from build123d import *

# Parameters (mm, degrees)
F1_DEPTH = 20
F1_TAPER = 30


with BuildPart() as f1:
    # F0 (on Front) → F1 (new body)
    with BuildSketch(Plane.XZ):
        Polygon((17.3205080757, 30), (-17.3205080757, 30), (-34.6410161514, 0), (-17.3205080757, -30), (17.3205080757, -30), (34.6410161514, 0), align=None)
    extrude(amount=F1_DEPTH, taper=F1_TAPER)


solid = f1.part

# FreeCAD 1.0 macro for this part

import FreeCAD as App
import Part
import Sketcher

V = App.Vector
Q = App.Units.Quantity

doc = App.newDocument("Part")
body = doc.addObject("PartDesign::Body", "Body")

# Sketch on XZ plane
sketch1 = doc.addObject("Sketcher::SketchObject", "Sketch")
body.addObject(sketch1)
sketch1.AttachmentSupport = (doc.XZ_Plane, [""])
sketch1.MapMode = "FlatFace"
sketch1.addGeometry([
    Part.LineSegment(V(17.320508, 30, 0), V(-17.320508, 30, 0)),  # 0
    Part.LineSegment(V(-17.320508, 30, 0), V(-34.641016, 0, 0)),  # 1
    Part.LineSegment(V(-34.641016, 0, 0), V(-17.320508, -30, 0)),  # 2
    Part.LineSegment(V(-17.320508, -30, 0), V(17.320508, -30, 0)),  # 3
    Part.LineSegment(V(17.320508, -30, 0), V(34.641016, 0, 0)),  # 4
    Part.LineSegment(V(34.641016, 0, 0), V(17.320508, 30, 0)),  # 5
], False)
sketch1.addConstraint([
    Sketcher.Constraint("Coincident", 0, 2, 1, 1),
    Sketcher.Constraint("Coincident", 1, 2, 2, 1),
    Sketcher.Constraint("Coincident", 2, 2, 3, 1),
    Sketcher.Constraint("Coincident", 3, 2, 4, 1),
    Sketcher.Constraint("Coincident", 4, 2, 5, 1),
    Sketcher.Constraint("Coincident", 5, 2, 0, 1),
    Sketcher.Constraint("Horizontal", 0),
    Sketcher.Constraint("Horizontal", 3),
    Sketcher.Constraint("Symmetric", 0, 2, 3, 2, -1, 1),
    Sketcher.Constraint("Symmetric", 1, 2, 4, 2, -1, 1),
    Sketcher.Constraint("PointOnObject", 1, 2, -1),
    Sketcher.Constraint("Parallel", 2, 5),
    Sketcher.Constraint("Vertical", 0, 2, 2, 2),
    Sketcher.Constraint("Angle", 1, Q("-120 deg")),
    Sketcher.Constraint("DistanceY", -1, 1, 0, 2, Q("30 mm")),
    Sketcher.Constraint("DistanceX", 0, 2, 0, 1, Q("34.641016 mm")),
])
pad1 = doc.addObject("PartDesign::Pad", "Pad")
body.addObject(pad1)
pad1.Profile = sketch1
pad1.Length = 20
pad1.TaperAngle = -30

doc.recompute()
